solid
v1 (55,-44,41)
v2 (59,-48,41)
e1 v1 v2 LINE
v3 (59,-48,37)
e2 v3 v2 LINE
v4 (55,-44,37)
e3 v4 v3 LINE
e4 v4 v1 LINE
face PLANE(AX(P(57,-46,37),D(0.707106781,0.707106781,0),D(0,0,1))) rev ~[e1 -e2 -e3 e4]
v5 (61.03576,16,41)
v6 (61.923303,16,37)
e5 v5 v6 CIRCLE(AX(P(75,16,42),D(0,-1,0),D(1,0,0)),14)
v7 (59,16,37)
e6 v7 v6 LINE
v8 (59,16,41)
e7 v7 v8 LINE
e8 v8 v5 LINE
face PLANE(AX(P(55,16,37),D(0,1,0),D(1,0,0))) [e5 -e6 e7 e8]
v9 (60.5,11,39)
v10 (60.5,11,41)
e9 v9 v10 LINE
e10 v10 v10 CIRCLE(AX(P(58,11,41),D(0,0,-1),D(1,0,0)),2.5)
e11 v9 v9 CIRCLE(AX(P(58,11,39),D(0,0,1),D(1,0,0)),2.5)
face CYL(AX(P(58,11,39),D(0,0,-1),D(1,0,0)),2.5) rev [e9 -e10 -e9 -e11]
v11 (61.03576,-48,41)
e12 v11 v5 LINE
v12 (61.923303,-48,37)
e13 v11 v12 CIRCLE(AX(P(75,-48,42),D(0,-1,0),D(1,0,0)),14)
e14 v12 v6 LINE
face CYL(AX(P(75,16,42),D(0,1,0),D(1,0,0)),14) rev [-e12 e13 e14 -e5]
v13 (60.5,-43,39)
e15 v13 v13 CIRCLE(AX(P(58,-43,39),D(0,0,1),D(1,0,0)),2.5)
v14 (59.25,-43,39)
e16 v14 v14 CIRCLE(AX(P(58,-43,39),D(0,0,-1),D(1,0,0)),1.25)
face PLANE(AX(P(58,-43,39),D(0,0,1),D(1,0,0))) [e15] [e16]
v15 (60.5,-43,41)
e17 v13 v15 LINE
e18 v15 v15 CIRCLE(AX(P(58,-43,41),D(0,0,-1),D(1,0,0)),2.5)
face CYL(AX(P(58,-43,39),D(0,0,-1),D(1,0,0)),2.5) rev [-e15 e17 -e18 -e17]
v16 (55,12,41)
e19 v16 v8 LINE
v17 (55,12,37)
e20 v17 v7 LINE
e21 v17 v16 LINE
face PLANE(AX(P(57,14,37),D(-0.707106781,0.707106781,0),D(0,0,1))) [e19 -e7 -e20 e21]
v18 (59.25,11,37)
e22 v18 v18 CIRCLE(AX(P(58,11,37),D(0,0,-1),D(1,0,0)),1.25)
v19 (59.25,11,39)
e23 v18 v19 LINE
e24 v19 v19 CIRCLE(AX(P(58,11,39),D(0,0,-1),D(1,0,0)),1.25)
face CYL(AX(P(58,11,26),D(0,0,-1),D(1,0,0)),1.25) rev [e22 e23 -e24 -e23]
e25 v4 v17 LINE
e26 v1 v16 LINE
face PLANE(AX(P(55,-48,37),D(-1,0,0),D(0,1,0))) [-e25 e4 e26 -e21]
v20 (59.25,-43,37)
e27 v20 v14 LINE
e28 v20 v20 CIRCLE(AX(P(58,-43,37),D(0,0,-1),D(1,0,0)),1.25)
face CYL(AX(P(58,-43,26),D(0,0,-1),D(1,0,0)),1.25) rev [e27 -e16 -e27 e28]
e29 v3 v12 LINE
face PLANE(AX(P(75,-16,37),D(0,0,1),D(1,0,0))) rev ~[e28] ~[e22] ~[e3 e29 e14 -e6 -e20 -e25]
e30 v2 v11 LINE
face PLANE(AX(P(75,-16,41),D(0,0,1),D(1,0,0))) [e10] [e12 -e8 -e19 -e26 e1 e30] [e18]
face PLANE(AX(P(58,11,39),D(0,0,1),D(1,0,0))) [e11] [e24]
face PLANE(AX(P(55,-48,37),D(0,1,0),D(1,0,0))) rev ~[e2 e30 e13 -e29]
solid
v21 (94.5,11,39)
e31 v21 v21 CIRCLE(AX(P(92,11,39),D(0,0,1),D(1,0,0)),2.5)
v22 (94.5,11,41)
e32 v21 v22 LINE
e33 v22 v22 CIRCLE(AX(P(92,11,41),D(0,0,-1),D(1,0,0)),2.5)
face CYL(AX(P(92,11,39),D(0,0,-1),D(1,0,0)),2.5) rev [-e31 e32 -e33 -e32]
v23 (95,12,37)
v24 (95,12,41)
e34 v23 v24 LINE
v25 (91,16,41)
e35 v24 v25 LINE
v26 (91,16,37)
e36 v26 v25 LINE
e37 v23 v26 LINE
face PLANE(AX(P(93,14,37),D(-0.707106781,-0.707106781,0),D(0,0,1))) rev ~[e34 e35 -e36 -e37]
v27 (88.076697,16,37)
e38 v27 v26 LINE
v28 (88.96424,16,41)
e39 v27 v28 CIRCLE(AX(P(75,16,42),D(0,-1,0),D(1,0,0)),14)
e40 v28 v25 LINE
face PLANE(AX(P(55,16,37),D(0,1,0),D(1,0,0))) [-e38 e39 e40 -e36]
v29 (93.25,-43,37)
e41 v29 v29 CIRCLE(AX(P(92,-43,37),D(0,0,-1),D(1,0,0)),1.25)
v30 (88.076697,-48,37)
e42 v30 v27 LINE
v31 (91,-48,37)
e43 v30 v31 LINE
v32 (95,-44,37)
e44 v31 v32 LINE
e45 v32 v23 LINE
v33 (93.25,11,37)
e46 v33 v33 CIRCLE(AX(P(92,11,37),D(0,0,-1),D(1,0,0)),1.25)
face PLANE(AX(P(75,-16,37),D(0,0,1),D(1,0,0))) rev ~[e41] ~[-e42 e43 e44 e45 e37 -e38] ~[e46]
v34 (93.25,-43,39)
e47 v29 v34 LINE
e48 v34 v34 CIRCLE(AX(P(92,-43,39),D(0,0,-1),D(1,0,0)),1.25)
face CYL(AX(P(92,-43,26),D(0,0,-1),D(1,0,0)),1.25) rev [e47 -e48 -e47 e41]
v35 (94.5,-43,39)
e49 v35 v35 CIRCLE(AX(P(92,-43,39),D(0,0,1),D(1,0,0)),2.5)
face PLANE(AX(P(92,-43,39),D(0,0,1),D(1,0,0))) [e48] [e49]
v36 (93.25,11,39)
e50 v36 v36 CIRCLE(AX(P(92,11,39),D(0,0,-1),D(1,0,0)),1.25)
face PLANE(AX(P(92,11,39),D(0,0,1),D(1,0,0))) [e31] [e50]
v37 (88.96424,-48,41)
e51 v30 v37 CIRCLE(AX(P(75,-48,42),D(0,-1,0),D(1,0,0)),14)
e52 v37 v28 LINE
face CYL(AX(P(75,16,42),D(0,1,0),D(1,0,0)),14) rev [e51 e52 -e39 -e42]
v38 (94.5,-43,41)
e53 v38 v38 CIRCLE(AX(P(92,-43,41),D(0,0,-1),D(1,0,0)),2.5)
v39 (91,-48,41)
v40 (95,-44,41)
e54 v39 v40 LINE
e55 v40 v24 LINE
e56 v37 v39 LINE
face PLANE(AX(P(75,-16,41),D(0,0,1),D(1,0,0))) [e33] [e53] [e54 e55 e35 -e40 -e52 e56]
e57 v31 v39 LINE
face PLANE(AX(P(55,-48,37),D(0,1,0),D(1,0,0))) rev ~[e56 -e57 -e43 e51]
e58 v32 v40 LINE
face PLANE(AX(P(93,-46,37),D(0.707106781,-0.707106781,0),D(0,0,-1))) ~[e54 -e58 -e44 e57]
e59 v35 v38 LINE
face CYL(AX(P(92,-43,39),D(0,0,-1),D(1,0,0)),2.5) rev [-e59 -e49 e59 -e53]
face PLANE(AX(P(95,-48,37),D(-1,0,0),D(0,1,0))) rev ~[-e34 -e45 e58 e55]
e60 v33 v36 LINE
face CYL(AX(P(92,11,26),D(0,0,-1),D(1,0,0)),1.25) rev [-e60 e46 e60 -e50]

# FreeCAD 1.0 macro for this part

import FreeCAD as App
import Part
import Sketcher
Q = App.Units.Quantity


def edges_at(feature, points):
    """Names of the edges that pass closest to the given points."""
    edges = feature.Shape.Edges
    near = lambda p: min(range(len(edges)), key=lambda i: edges[i].distToShape(Part.Vertex(*p))[0])
    return sorted({f"Edge{near(p) + 1}" for p in points})

doc = App.newDocument("Part")
body = doc.addObject("PartDesign::Body", "Body")

# Sketch on XY plane
sketch1 = body.newObject("Sketcher::SketchObject", "Sketch")
sketch1.AttachmentSupport = (doc.getObject("XY_Plane"), [""])
sketch1.MapMode = "FlatFace"
sketch1.AttachmentOffset = App.Placement(App.Vector(0, 0, 26), App.Rotation())
sketch1.addGeometry(Part.Circle(App.Vector(58, -43, 0), App.Vector(0, 0, 1), 2.5), False)
sketch1.addConstraint([
    Sketcher.Constraint("Diameter", 0, Q("5 mm")),
    Sketcher.Constraint("DistanceX", -1, 1, 0, 3, Q("58 mm")),
    Sketcher.Constraint("DistanceY", 0, 3, -1, 1, Q("43 mm")),
])
pad1 = body.newObject("PartDesign::Pad", "Pad")
pad1.Profile = sketch1
pad1.Length = 3
body2 = doc.addObject("PartDesign::Body", "Body001")
body2.AllowCompound = True

# Sketch on XY plane
sketch2 = body2.newObject("Sketcher::SketchObject", "Sketch001")
sketch2.AttachmentSupport = (doc.getObject("XY_Plane001"), [""])
sketch2.MapMode = "FlatFace"
sketch2.AttachmentOffset = App.Placement(App.Vector(0, 0, 26), App.Rotation())
sketch2.addGeometry(Part.Circle(App.Vector(58, 11, 0), App.Vector(0, 0, 1), 2.5), False)
sketch2.addConstraint([
    Sketcher.Constraint("Diameter", 0, Q("5 mm")),
    Sketcher.Constraint("DistanceX", -1, 1, 0, 3, Q("58 mm")),
    Sketcher.Constraint("DistanceY", -1, 1, 0, 3, Q("11 mm")),
])
pad2 = body2.newObject("PartDesign::Pad", "Pad001")
pad2.Profile = sketch2
pad2.Length = 3
doc.recompute()

boolean = body2.newObject("PartDesign::Boolean", "Boolean")
boolean.Type = "Fuse"
boolean.addObjects([body])
body3 = doc.addObject("PartDesign::Body", "Body002")
body3.AllowCompound = True
doc.recompute()

body2.Placement = App.Placement(App.Vector(34, 0, 13), App.Rotation(App.Vector(0, 0, 1), 0))
boolean2 = body3.newObject("PartDesign::Boolean", "Boolean001")
boolean2.Type = "Fuse"
boolean2.addObjects([body2])
body4 = doc.addObject("PartDesign::Body", "Body003")

# Sketch on XY plane
sketch3 = body4.newObject("Sketcher::SketchObject", "Sketch002")
sketch3.AttachmentSupport = (doc.getObject("XY_Plane003"), [""])
sketch3.MapMode = "FlatFace"
sketch3.AttachmentOffset = App.Placement(App.Vector(0, 0, 26), App.Rotation())
sketch3.addGeometry(Part.Circle(App.Vector(58, -43, 0), App.Vector(0, 0, 1), 2.5), False)
sketch3.addConstraint([
    Sketcher.Constraint("Diameter", 0, Q("5 mm")),
    Sketcher.Constraint("DistanceX", -1, 1, 0, 3, Q("58 mm")),
    Sketcher.Constraint("DistanceY", 0, 3, -1, 1, Q("43 mm")),
])
pad3 = body4.newObject("PartDesign::Pad", "Pad002")
pad3.Profile = sketch3
pad3.Length = 3
body5 = doc.addObject("PartDesign::Body", "Body004")
body5.AllowCompound = True

# Sketch on XY plane
sketch4 = body5.newObject("Sketcher::SketchObject", "Sketch003")
sketch4.AttachmentSupport = (doc.getObject("XY_Plane004"), [""])
sketch4.MapMode = "FlatFace"
sketch4.AttachmentOffset = App.Placement(App.Vector(0, 0, 26), App.Rotation())
sketch4.addGeometry(Part.Circle(App.Vector(58, 11, 0), App.Vector(0, 0, 1), 2.5), False)
sketch4.addConstraint([
    Sketcher.Constraint("Diameter", 0, Q("5 mm")),
    Sketcher.Constraint("DistanceX", -1, 1, 0, 3, Q("58 mm")),
    Sketcher.Constraint("DistanceY", -1, 1, 0, 3, Q("11 mm")),
])
pad4 = body5.newObject("PartDesign::Pad", "Pad003")
pad4.Profile = sketch4
pad4.Length = 3
doc.recompute()

boolean3 = body5.newObject("PartDesign::Boolean", "Boolean002")
boolean3.Type = "Fuse"
boolean3.addObjects([body4])
body6 = doc.addObject("PartDesign::Body", "Body005")
body6.AllowCompound = True
doc.recompute()

body5.Placement = App.Placement(App.Vector(0, 0, 13), App.Rotation(App.Vector(0, 0, 1), 0))
boolean4 = body6.newObject("PartDesign::Boolean", "Boolean003")
boolean4.Type = "Fuse"
boolean4.addObjects([body5])
doc.recompute()

boolean5 = body6.newObject("PartDesign::Boolean", "Boolean004")
boolean5.Type = "Fuse"
boolean5.addObjects([body3])
body7 = doc.addObject("PartDesign::Body", "Body006")

# Sketch on XY plane
sketch5 = body7.newObject("Sketcher::SketchObject", "Sketch004")
sketch5.AttachmentSupport = (doc.getObject("XY_Plane006"), [""])
sketch5.MapMode = "FlatFace"
sketch5.AttachmentOffset = App.Placement(App.Vector(0, 0, 26), App.Rotation())
sketch5.addGeometry(Part.Circle(App.Vector(58, -43, 0), App.Vector(0, 0, 1), 1.25), False)
sketch5.addConstraint([
    Sketcher.Constraint("Diameter", 0, Q("2.5 mm")),
    Sketcher.Constraint("DistanceX", -1, 1, 0, 3, Q("58 mm")),
    Sketcher.Constraint("DistanceY", 0, 3, -1, 1, Q("43 mm")),
])
pad5 = body7.newObject("PartDesign::Pad", "Pad004")
pad5.Profile = sketch5
pad5.Length = 20
body8 = doc.addObject("PartDesign::Body", "Body007")
body8.AllowCompound = True

# Sketch on XY plane
sketch6 = body8.newObject("Sketcher::SketchObject", "Sketch005")
sketch6.AttachmentSupport = (doc.getObject("XY_Plane007"), [""])
sketch6.MapMode = "FlatFace"
sketch6.AttachmentOffset = App.Placement(App.Vector(0, 0, 26), App.Rotation())
sketch6.addGeometry(Part.Circle(App.Vector(58, 11, 0), App.Vector(0, 0, 1), 1.25), False)
sketch6.addConstraint([
    Sketcher.Constraint("Diameter", 0, Q("2.5 mm")),
    Sketcher.Constraint("DistanceX", -1, 1, 0, 3, Q("58 mm")),
    Sketcher.Constraint("DistanceY", -1, 1, 0, 3, Q("11 mm")),
])
pad6 = body8.newObject("PartDesign::Pad", "Pad005")
pad6.Profile = sketch6
pad6.Length = 20
doc.recompute()

boolean6 = body8.newObject("PartDesign::Boolean", "Boolean005")
boolean6.Type = "Fuse"
boolean6.addObjects([body7])
body9 = doc.addObject("PartDesign::Body", "Body008")
body9.AllowCompound = True
doc.recompute()

body8.Placement = App.Placement(App.Vector(34, 0, 0), App.Rotation(App.Vector(0, 0, 1), 0))
boolean7 = body9.newObject("PartDesign::Boolean", "Boolean006")
boolean7.Type = "Fuse"
boolean7.addObjects([body8])
body10 = doc.addObject("PartDesign::Body", "Body009")

# Sketch on XY plane
sketch7 = body10.newObject("Sketcher::SketchObject", "Sketch006")
sketch7.AttachmentSupport = (doc.getObject("XY_Plane009"), [""])
sketch7.MapMode = "FlatFace"
sketch7.AttachmentOffset = App.Placement(App.Vector(0, 0, 26), App.Rotation())
sketch7.addGeometry(Part.Circle(App.Vector(58, -43, 0), App.Vector(0, 0, 1), 1.25), False)
sketch7.addConstraint([
    Sketcher.Constraint("Diameter", 0, Q("2.5 mm")),
    Sketcher.Constraint("DistanceX", -1, 1, 0, 3, Q("58 mm")),
    Sketcher.Constraint("DistanceY", 0, 3, -1, 1, Q("43 mm")),
])
pad7 = body10.newObject("PartDesign::Pad", "Pad006")
pad7.Profile = sketch7
pad7.Length = 20
body11 = doc.addObject("PartDesign::Body", "Body010")
body11.AllowCompound = True

# Sketch on XY plane
sketch8 = body11.newObject("Sketcher::SketchObject", "Sketch007")
sketch8.AttachmentSupport = (doc.getObject("XY_Plane010"), [""])
sketch8.MapMode = "FlatFace"
sketch8.AttachmentOffset = App.Placement(App.Vector(0, 0, 26), App.Rotation())
sketch8.addGeometry(Part.Circle(App.Vector(58, 11, 0), App.Vector(0, 0, 1), 1.25), False)
sketch8.addConstraint([
    Sketcher.Constraint("Diameter", 0, Q("2.5 mm")),
    Sketcher.Constraint("DistanceX", -1, 1, 0, 3, Q("58 mm")),
    Sketcher.Constraint("DistanceY", -1, 1, 0, 3, Q("11 mm")),
])
pad8 = body11.newObject("PartDesign::Pad", "Pad007")
pad8.Profile = sketch8
pad8.Length = 20
doc.recompute()

boolean8 = body11.newObject("PartDesign::Boolean", "Boolean007")
boolean8.Type = "Fuse"
boolean8.addObjects([body10])
doc.recompute()

boolean9 = body11.newObject("PartDesign::Boolean", "Boolean008")
boolean9.Type = "Fuse"
boolean9.addObjects([body9])
body12 = doc.addObject("PartDesign::Body", "Body011")

# Sketch on XZ plane
sketch9 = body12.newObject("Sketcher::SketchObject", "Sketch008")
sketch9.AttachmentSupport = (doc.getObject("XZ_Plane011"), [""])
sketch9.MapMode = "FlatFace"
sketch9.AttachmentOffset = App.Placement(App.Vector(0, 0, -16), App.Rotation())
sketch9.addGeometry(Part.Circle(App.Vector(75, 42, 0), App.Vector(0, 0, 1), 14), False)
sketch9.addConstraint([
    Sketcher.Constraint("Diameter", 0, Q("28 mm")),
    Sketcher.Constraint("DistanceX", -1, 1, 0, 3, Q("75 mm")),
    Sketcher.Constraint("DistanceY", -1, 1, 0, 3, Q("42 mm")),
])
pad9 = body12.newObject("PartDesign::Pad", "Pad008")
pad9.Profile = sketch9
pad9.Length = 64
body13 = doc.addObject("PartDesign::Body", "Body012")
body13.AllowCompound = True

# Sketch on XY plane
sketch10 = body13.newObject("Sketcher::SketchObject", "Sketch009")
sketch10.AttachmentSupport = (doc.getObject("XY_Plane012"), [""])
sketch10.MapMode = "FlatFace"
sketch10.AttachmentOffset = App.Placement(App.Vector(0, 0, 37), App.Rotation())
sketch10.addGeometry([
    Part.LineSegment(App.Vector(55, 16, 0), App.Vector(55, -48, 0)),
    Part.LineSegment(App.Vector(55, -48, 0), App.Vector(95, -48, 0)),
    Part.LineSegment(App.Vector(95, -48, 0), App.Vector(95, 16, 0)),
    Part.LineSegment(App.Vector(95, 16, 0), App.Vector(55, 16, 0)),
], False)
sketch10.addConstraint([
    Sketcher.Constraint("Coincident", 0, 2, 1, 1),
    Sketcher.Constraint("Coincident", 1, 2, 2, 1),
    Sketcher.Constraint("Coincident", 2, 2, 3, 1),
    Sketcher.Constraint("Coincident", 3, 2, 0, 1),
    Sketcher.Constraint("Vertical", 0),
    Sketcher.Constraint("Horizontal", 1),
    Sketcher.Constraint("Vertical", 2),
    Sketcher.Constraint("Horizontal", 3),
    Sketcher.Constraint("DistanceX", 1, 1, 1, 2, Q("40 mm")),
    Sketcher.Constraint("DistanceY", 0, 2, 0, 1, Q("64 mm")),
    Sketcher.Constraint("DistanceX", -1, 1, 0, 2, Q("55 mm")),
    Sketcher.Constraint("DistanceY", 0, 2, -1, 1, Q("48 mm")),
])
pad10 = body13.newObject("PartDesign::Pad", "Pad009")
pad10.Profile = sketch10
pad10.Length = 4
doc.recompute()

boolean10 = body13.newObject("PartDesign::Boolean", "Boolean009")
boolean10.Type = "Cut"
boolean10.addObjects([body12])
doc.recompute()

boolean11 = body13.newObject("PartDesign::Boolean", "Boolean010")
boolean11.Type = "Cut"
boolean11.addObjects([body11])
doc.recompute()

boolean12 = body13.newObject("PartDesign::Boolean", "Boolean011")
boolean12.Type = "Cut"
boolean12.addObjects([body6])
doc.recompute()

chamfer = body13.newObject("PartDesign::Chamfer", "Chamfer")
chamfer.Base = (boolean12, edges_at(boolean12, [(55, -48, 39), (95, -48, 39)]))
chamfer.Size = 4
doc.recompute()

chamfer2 = body13.newObject("PartDesign::Chamfer", "Chamfer001")
chamfer2.Base = (chamfer, edges_at(chamfer, [(55, 16, 39), (95, 16, 39)]))
chamfer2.Size = 4

doc.recompute()
